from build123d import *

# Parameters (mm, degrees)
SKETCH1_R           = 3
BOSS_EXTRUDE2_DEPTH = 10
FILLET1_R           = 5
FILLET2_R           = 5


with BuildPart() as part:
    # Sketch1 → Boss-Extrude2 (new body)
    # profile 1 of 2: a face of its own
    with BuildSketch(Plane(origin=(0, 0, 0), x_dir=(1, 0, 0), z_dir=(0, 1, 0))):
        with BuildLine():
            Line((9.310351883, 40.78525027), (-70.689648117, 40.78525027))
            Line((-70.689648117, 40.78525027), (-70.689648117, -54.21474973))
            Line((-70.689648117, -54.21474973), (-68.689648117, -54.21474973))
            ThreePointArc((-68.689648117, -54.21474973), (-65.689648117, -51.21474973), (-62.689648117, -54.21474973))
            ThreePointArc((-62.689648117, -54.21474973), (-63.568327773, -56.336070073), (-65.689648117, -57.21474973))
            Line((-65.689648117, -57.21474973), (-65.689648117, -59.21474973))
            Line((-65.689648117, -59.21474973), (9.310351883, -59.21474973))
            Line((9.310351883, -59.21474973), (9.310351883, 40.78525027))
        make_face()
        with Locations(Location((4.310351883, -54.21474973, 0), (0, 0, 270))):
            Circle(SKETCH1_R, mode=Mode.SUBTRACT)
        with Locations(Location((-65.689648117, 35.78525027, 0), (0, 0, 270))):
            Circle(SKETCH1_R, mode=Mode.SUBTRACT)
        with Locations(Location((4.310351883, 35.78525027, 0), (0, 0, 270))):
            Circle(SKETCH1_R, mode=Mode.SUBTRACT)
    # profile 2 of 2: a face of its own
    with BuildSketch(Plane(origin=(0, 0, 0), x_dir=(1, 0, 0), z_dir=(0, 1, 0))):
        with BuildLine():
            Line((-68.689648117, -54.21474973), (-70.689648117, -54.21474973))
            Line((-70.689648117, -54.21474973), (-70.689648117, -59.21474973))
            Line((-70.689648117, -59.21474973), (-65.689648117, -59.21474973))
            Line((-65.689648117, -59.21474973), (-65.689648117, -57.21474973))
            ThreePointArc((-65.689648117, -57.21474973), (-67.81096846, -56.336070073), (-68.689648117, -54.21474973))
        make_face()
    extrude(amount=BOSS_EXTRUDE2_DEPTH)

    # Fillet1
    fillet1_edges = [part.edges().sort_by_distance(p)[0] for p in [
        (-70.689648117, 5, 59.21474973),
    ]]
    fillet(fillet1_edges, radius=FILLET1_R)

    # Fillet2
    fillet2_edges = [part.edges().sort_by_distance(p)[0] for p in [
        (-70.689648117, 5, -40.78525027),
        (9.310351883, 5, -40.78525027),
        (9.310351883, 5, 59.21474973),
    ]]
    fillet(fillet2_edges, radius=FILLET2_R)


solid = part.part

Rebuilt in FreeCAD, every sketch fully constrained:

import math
import FreeCAD as App
import Part
import Sketcher
from FreeCAD import Vector


def edges_at(feature, points):
    """Names of the edges that pass closest to the given points."""
    edges = feature.Shape.Edges
    near = lambda p: min(range(len(edges)), key=lambda i: edges[i].distToShape(Part.Vertex(*p))[0])
    return sorted({f"Edge{near(p) + 1}" for p in points})


def add_polygon(sketch, points):
    """Adds a closed chain of lines whose ends are joined by coincident constraints."""
    first, n = sketch.GeometryCount, len(points)
    for a, b in zip(points, points[1:] + points[:1]):
        sketch.addGeometry(Part.LineSegment(App.Vector(*a, 0), App.Vector(*b, 0)), False)
    for i in range(n):
        sketch.addConstraint(Sketcher.Constraint("Coincident", first + i, 2, first + (i + 1) % n, 1))

doc = App.newDocument("Part")
body = doc.addObject("PartDesign::Body", "Body")

# Sketch on XZ plane
sketch1 = body.newObject("Sketcher::SketchObject", "Sketch")
sketch1.AttachmentSupport = (doc.getObject("XZ_Plane"), [""])
sketch1.MapMode = "FlatFace"
add_polygon(sketch1, [(9.3, -40.8), (-70.7, -40.8), (-70.7, 59.2), (9.3, 59.2)])  # lines 0-3
sketch1.addGeometry(Part.ArcOfCircle(Part.Circle(Vector(-65.7, 54.2, 0), Vector(0, 0, 1), 3), math.radians(180), math.radians(360)), False)  # 4
sketch1.addGeometry(Part.ArcOfCircle(Part.Circle(Vector(-65.7, 54.2, 0), Vector(0, 0, 1), 3), math.radians(0), math.radians(90)), False)  # 5
sketch1.addGeometry(Part.ArcOfCircle(Part.Circle(Vector(-65.7, 54.2, 0), Vector(0, 0, 1), 3), math.radians(90), math.radians(180)), False)  # 6
sketch1.addGeometry(Part.Circle(Vector(4.3, 54.2, 0), Vector(0, 0, 1), 3), False)  # 7
sketch1.addGeometry(Part.Circle(Vector(-65.7, -35.8, 0), Vector(0, 0, 1), 3), False)  # 8
sketch1.addGeometry(Part.Circle(Vector(4.3, -35.8, 0), Vector(0, 0, 1), 3), False)  # 9
sketch1.addConstraint([
    Sketcher.Constraint("Tangent", 4, 2, 5, 1),
    Sketcher.Constraint("Tangent", 5, 2, 6, 1),
    Sketcher.Constraint("Tangent", 6, 2, 4, 1),
    Sketcher.Constraint("Horizontal", 0),
    Sketcher.Constraint("Vertical", 1),
    Sketcher.Constraint("Horizontal", 2),
    Sketcher.Constraint("Vertical", 3),
    Sketcher.Constraint("Equal", 6, 7),
    Sketcher.Constraint("Equal", 7, 8),
    Sketcher.Constraint("Equal", 8, 9),
    Sketcher.Constraint("Horizontal", 6, 3, 7, 3),
    Sketcher.Constraint("Horizontal", 8, 3, 9, 3),
    Sketcher.Constraint("Horizontal", 7, 3, 4, 2),
    Sketcher.Constraint("Horizontal", 4, 2, 6, 2),
    Sketcher.Constraint("Vertical", 6, 3, 8, 3),
    Sketcher.Constraint("Vertical", 7, 3, 9, 3),
    Sketcher.Constraint("Vertical", 8, 3, 5, 2),
    Sketcher.Constraint("Diameter", 7, 6.0),
    Sketcher.Constraint("DistanceX", 0, 2, 0, 1, 80.0),
    Sketcher.Constraint("DistanceY", 1, 1, 1, 2, 100.0),
    Sketcher.Constraint("DistanceX", 6, 3, 7, 3, 70.0),
    Sketcher.Constraint("DistanceY", 8, 3, 6, 3, 90.0),
    Sketcher.Constraint("DistanceX", 0, 2, 8, 3, 5.0),
    Sketcher.Constraint("DistanceY", 0, 2, 8, 3, 5.0),
    Sketcher.Constraint("DistanceX", 4, 3, -1, 1, 65.689648),
    Sketcher.Constraint("DistanceY", -1, 1, 4, 3, 54.21475),
])
pad1 = body.newObject("PartDesign::Pad", "Pad")
pad1.Profile = sketch1
pad1.Length = 10
pad1.Reversed = True
doc.recompute()

fillet = body.newObject("PartDesign::Fillet", "Fillet")
fillet.Base = (pad1, edges_at(pad1, [(-70.69, 5, 59.215)]))
fillet.Radius = 5
doc.recompute()

fillet2 = body.newObject("PartDesign::Fillet", "Fillet001")
fillet2.Base = (fillet, edges_at(fillet, [(-70.69, 5, -40.785), (9.31, 5, -40.785), (9.31, 5, 59.215)]))
fillet2.Radius = 5

doc.recompute()
